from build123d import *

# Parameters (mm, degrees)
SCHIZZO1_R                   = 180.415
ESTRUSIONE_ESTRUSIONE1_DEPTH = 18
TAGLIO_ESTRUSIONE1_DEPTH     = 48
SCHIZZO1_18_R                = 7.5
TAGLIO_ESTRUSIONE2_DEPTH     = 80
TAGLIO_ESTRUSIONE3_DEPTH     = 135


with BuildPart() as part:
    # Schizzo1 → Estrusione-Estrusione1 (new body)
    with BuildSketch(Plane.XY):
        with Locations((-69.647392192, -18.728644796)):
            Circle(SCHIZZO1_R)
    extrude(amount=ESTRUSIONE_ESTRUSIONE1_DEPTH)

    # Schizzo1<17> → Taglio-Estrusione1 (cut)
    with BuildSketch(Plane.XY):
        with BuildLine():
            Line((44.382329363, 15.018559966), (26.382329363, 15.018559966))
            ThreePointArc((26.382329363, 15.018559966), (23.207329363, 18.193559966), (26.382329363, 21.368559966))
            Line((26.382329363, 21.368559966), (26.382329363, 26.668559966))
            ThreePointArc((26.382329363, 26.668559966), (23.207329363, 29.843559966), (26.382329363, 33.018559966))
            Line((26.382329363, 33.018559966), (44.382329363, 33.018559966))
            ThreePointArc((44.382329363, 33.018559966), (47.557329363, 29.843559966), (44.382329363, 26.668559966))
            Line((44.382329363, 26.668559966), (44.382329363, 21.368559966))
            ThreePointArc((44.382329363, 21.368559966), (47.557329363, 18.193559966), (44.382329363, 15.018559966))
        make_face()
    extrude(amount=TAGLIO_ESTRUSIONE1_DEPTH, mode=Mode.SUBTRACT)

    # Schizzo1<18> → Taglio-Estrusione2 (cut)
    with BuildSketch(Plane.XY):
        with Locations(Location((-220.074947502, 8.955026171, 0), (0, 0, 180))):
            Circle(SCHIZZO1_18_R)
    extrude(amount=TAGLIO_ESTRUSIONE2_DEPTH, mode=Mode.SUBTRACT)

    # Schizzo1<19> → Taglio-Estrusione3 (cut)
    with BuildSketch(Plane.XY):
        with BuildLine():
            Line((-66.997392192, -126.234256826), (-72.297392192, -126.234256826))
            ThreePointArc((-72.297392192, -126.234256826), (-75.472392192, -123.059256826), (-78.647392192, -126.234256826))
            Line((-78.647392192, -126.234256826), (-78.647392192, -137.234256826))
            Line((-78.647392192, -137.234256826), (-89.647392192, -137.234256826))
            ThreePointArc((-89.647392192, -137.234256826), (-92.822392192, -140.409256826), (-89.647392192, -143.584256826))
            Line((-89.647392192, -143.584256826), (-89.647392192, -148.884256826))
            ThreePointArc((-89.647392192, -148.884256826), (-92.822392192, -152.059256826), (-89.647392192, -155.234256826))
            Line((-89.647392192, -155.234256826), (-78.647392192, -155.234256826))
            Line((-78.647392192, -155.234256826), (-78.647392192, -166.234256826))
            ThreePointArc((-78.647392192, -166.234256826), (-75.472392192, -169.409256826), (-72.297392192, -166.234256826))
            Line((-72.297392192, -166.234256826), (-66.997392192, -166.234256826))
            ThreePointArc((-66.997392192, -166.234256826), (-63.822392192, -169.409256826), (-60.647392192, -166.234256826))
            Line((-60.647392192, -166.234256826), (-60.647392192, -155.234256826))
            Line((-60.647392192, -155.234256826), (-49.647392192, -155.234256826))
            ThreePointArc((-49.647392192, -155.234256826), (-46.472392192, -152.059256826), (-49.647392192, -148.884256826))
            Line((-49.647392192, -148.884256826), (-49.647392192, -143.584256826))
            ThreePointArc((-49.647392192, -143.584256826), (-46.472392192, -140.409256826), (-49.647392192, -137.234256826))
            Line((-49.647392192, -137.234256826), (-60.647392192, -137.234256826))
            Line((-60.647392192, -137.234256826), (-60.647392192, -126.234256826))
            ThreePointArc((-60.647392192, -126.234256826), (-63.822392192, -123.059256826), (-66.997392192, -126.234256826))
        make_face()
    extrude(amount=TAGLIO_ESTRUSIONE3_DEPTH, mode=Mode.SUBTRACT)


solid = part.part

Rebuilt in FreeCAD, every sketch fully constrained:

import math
import FreeCAD as App
import Part
import Sketcher

V = App.Vector

doc = App.newDocument("Part")
body = doc.addObject("PartDesign::Body", "Body")

# Sketch on XY plane
sketch1 = doc.addObject("Sketcher::SketchObject", "Sketch")
body.addObject(sketch1)
sketch1.AttachmentSupport = (doc.XY_Plane, [""])
sketch1.MapMode = "FlatFace"
sketch1.addGeometry(Part.Circle(V(-69.647392, -18.728645, 0), V(0, 0, 1), 180.415), False)
sketch1.addConstraint([
    Sketcher.Constraint("Diameter", 0, 360.83),
    Sketcher.Constraint("DistanceX", 0, 3, -1, 1, 69.647392),
    Sketcher.Constraint("DistanceY", 0, 3, -1, 1, 18.728645),
])
pad1 = doc.addObject("PartDesign::Pad", "Pad")
body.addObject(pad1)
pad1.Profile = sketch1
pad1.Length = 18

# Sketch on XY plane
sketch2 = doc.addObject("Sketcher::SketchObject", "Sketch001")
body.addObject(sketch2)
sketch2.AttachmentSupport = (doc.XY_Plane, [""])
sketch2.MapMode = "FlatFace"
sketch2.addGeometry([
    Part.LineSegment(V(26.382329, 15.01856, 0), V(44.382329, 15.01856, 0)),  # 0
    Part.ArcOfCircle(Part.Circle(V(44.382329, 18.19356, 0), V(0, 0, 1), 3.175), math.radians(-90), math.radians(90)),  # 1
    Part.LineSegment(V(44.382329, 21.36856, 0), V(44.382329, 26.66856, 0)),  # 2
    Part.ArcOfCircle(Part.Circle(V(44.382329, 29.84356, 0), V(0, 0, 1), 3.175), math.radians(-90), math.radians(90)),  # 3
    Part.LineSegment(V(44.382329, 33.01856, 0), V(26.382329, 33.01856, 0)),  # 4
    Part.ArcOfCircle(Part.Circle(V(26.382329, 29.84356, 0), V(0, 0, 1), 3.175), math.radians(90), math.radians(270)),  # 5
    Part.LineSegment(V(26.382329, 26.66856, 0), V(26.382329, 21.36856, 0)),  # 6
    Part.ArcOfCircle(Part.Circle(V(26.382329, 18.19356, 0), V(0, 0, 1), 3.175), math.radians(90), math.radians(270)),  # 7
], False)
sketch2.addConstraint([
    Sketcher.Constraint("Tangent", 0, 2, 1, 1),
    Sketcher.Constraint("Coincident", 1, 2, 2, 1),
    Sketcher.Constraint("Coincident", 2, 2, 3, 1),
    Sketcher.Constraint("Tangent", 3, 2, 4, 1),
    Sketcher.Constraint("Tangent", 4, 2, 5, 1),
    Sketcher.Constraint("Coincident", 5, 2, 6, 1),
    Sketcher.Constraint("Coincident", 6, 2, 7, 1),
    Sketcher.Constraint("Tangent", 7, 2, 0, 1),
    Sketcher.Constraint("Horizontal", 0),
    Sketcher.Constraint("Vertical", 2),
    Sketcher.Constraint("Horizontal", 4),
    Sketcher.Constraint("Vertical", 6),
    Sketcher.Constraint("Equal", 1, 3),
    Sketcher.Constraint("Equal", 3, 5),
    Sketcher.Constraint("Equal", 5, 7),
    Sketcher.Constraint("Vertical", 1, 3, 3, 3),
    Sketcher.Constraint("Vertical", 5, 3, 7, 3),
    Sketcher.Constraint("Vertical", 0, 2, 1, 2),
    Sketcher.Constraint("Vertical", 4, 2, 5, 2),
    Sketcher.Constraint("DistanceX", 0, 1, 0, 2, 18.0),
    Sketcher.Constraint("DistanceY", 2, 1, 2, 2, 5.3),
    Sketcher.Constraint("Radius", 1, 3.175),
    Sketcher.Constraint("DistanceX", -1, 1, 1, 3, 44.382329),
    Sketcher.Constraint("DistanceY", -1, 1, 1, 3, 18.19356),
])
pocket1 = doc.addObject("PartDesign::Pocket", "Pocket")
body.addObject(pocket1)
pocket1.Profile = sketch2
pocket1.Length = 48
pocket1.Reversed = True

# Sketch on XY plane
sketch3 = doc.addObject("Sketcher::SketchObject", "Sketch002")
body.addObject(sketch3)
sketch3.AttachmentSupport = (doc.XY_Plane, [""])
sketch3.MapMode = "FlatFace"
sketch3.addGeometry(Part.Circle(V(-220.074948, 8.955026, 0), V(0, 0, 1), 7.5), False)
sketch3.addConstraint([
    Sketcher.Constraint("Diameter", 0, 15.0),
    Sketcher.Constraint("DistanceX", 0, 3, -1, 1, 220.074948),
    Sketcher.Constraint("DistanceY", -1, 1, 0, 3, 8.955026),
])
pocket2 = doc.addObject("PartDesign::Pocket", "Pocket001")
body.addObject(pocket2)
pocket2.Profile = sketch3
pocket2.Length = 80
pocket2.Reversed = True

# Sketch on XY plane
sketch4 = doc.addObject("Sketcher::SketchObject", "Sketch003")
body.addObject(sketch4)
sketch4.AttachmentSupport = (doc.XY_Plane, [""])
sketch4.MapMode = "FlatFace"
sketch4.addGeometry([
    Part.LineSegment(V(-66.997392, -126.234257, 0), V(-72.297392, -126.234257, 0)),  # 0
    Part.ArcOfCircle(Part.Circle(V(-75.472392, -126.234257, 0), V(0, 0, 1), 3.175), math.radians(0), math.radians(180)),  # 1
    Part.LineSegment(V(-78.647392, -126.234257, 0), V(-78.647392, -137.234257, 0)),  # 2
    Part.LineSegment(V(-78.647392, -137.234257, 0), V(-89.647392, -137.234257, 0)),  # 3
    Part.ArcOfCircle(Part.Circle(V(-89.647392, -140.409257, 0), V(0, 0, 1), 3.175), math.radians(90), math.radians(270)),  # 4
    Part.LineSegment(V(-89.647392, -143.584257, 0), V(-89.647392, -148.884257, 0)),  # 5
    Part.ArcOfCircle(Part.Circle(V(-89.647392, -152.059257, 0), V(0, 0, 1), 3.175), math.radians(90), math.radians(270)),  # 6
    Part.LineSegment(V(-89.647392, -155.234257, 0), V(-78.647392, -155.234257, 0)),  # 7
    Part.LineSegment(V(-78.647392, -155.234257, 0), V(-78.647392, -166.234257, 0)),  # 8
    Part.ArcOfCircle(Part.Circle(V(-75.472392, -166.234257, 0), V(0, 0, 1), 3.175), math.radians(180), math.radians(360)),  # 9
    Part.LineSegment(V(-72.297392, -166.234257, 0), V(-66.997392, -166.234257, 0)),  # 10
    Part.ArcOfCircle(Part.Circle(V(-63.822392, -166.234257, 0), V(0, 0, 1), 3.175), math.radians(180), math.radians(360)),  # 11
    Part.LineSegment(V(-60.647392, -166.234257, 0), V(-60.647392, -155.234257, 0)),  # 12
    Part.LineSegment(V(-60.647392, -155.234257, 0), V(-49.647392, -155.234257, 0)),  # 13
    Part.ArcOfCircle(Part.Circle(V(-49.647392, -152.059257, 0), V(0, 0, 1), 3.175), math.radians(-90), math.radians(90)),  # 14
    Part.LineSegment(V(-49.647392, -148.884257, 0), V(-49.647392, -143.584257, 0)),  # 15
    Part.ArcOfCircle(Part.Circle(V(-49.647392, -140.409257, 0), V(0, 0, 1), 3.175), math.radians(-90), math.radians(90)),  # 16
    Part.LineSegment(V(-49.647392, -137.234257, 0), V(-60.647392, -137.234257, 0)),  # 17
    Part.LineSegment(V(-60.647392, -137.234257, 0), V(-60.647392, -126.234257, 0)),  # 18
    Part.ArcOfCircle(Part.Circle(V(-63.822392, -126.234257, 0), V(0, 0, 1), 3.175), math.radians(0), math.radians(180)),  # 19
], False)
sketch4.addConstraint([
    Sketcher.Constraint("Coincident", 0, 2, 1, 1),
    Sketcher.Constraint("Tangent", 1, 2, 2, 1),
    Sketcher.Constraint("Coincident", 2, 2, 3, 1),
    Sketcher.Constraint("Tangent", 3, 2, 4, 1),
    Sketcher.Constraint("Coincident", 4, 2, 5, 1),
    Sketcher.Constraint("Coincident", 5, 2, 6, 1),
    Sketcher.Constraint("Tangent", 6, 2, 7, 1),
    Sketcher.Constraint("Coincident", 7, 2, 8, 1),
    Sketcher.Constraint("Tangent", 8, 2, 9, 1),
    Sketcher.Constraint("Coincident", 9, 2, 10, 1),
    Sketcher.Constraint("Coincident", 10, 2, 11, 1),
    Sketcher.Constraint("Tangent", 11, 2, 12, 1),
    Sketcher.Constraint("Coincident", 12, 2, 13, 1),
    Sketcher.Constraint("Tangent", 13, 2, 14, 1),
    Sketcher.Constraint("Coincident", 14, 2, 15, 1),
    Sketcher.Constraint("Coincident", 15, 2, 16, 1),
    Sketcher.Constraint("Tangent", 16, 2, 17, 1),
    Sketcher.Constraint("Coincident", 17, 2, 18, 1),
    Sketcher.Constraint("Tangent", 18, 2, 19, 1),
    Sketcher.Constraint("Coincident", 19, 2, 0, 1),
    Sketcher.Constraint("Horizontal", 0),
    Sketcher.Constraint("Vertical", 2),
    Sketcher.Constraint("Horizontal", 3),
    Sketcher.Constraint("Vertical", 5),
    Sketcher.Constraint("Horizontal", 7),
    Sketcher.Constraint("Vertical", 8),
    Sketcher.Constraint("Horizontal", 10),
    Sketcher.Constraint("Vertical", 12),
    Sketcher.Constraint("Horizontal", 13),
    Sketcher.Constraint("Vertical", 15),
    Sketcher.Constraint("Horizontal", 17),
    Sketcher.Constraint("Vertical", 18),
    Sketcher.Constraint("Equal", 1, 4),
    Sketcher.Constraint("Equal", 4, 6),
    Sketcher.Constraint("Equal", 6, 9),
    Sketcher.Constraint("Equal", 9, 11),
    Sketcher.Constraint("Equal", 11, 14),
    Sketcher.Constraint("Equal", 14, 16),
    Sketcher.Constraint("Equal", 16, 19),
    Sketcher.Constraint("Horizontal", 9, 3, 11, 3),
    Sketcher.Constraint("Horizontal", 6, 3, 14, 3),
    Sketcher.Constraint("Horizontal", 4, 3, 16, 3),
    Sketcher.Constraint("Horizontal", 1, 3, 19, 3),
    Sketcher.Constraint("Horizontal", 19, 3, 0, 2),
    Sketcher.Constraint("Horizontal", 8, 2, 9, 2),
    Sketcher.Constraint("Vertical", 4, 3, 6, 3),
    Sketcher.Constraint("Vertical", 1, 3, 9, 3),
    Sketcher.Constraint("Vertical", 14, 3, 16, 3),
    Sketcher.Constraint("Vertical", 11, 3, 19, 3),
    Sketcher.Constraint("Vertical", 3, 2, 4, 2),
    Sketcher.Constraint("Vertical", 13, 2, 14, 2),
    Sketcher.Constraint("Equal", 7, 13),
    Sketcher.Constraint("Equal", 17, 2),
    Sketcher.Constraint("Equal", 10, 5),
    Sketcher.Constraint("Equal", 2, 8),
    Sketcher.Constraint("DistanceX", 3, 2, 3, 1, 11.0),
    Sketcher.Constraint("DistanceX", 0, 2, 0, 1, 5.3),
    Sketcher.Constraint("Radius", 1, 3.175),
    Sketcher.Constraint("DistanceX", 1, 3, -1, 1, 75.472392),
    Sketcher.Constraint("DistanceY", 1, 3, -1, 1, 126.234257),
])
pocket3 = doc.addObject("PartDesign::Pocket", "Pocket002")
body.addObject(pocket3)
pocket3.Profile = sketch4
pocket3.Length = 135
pocket3.Reversed = True

doc.recompute()
